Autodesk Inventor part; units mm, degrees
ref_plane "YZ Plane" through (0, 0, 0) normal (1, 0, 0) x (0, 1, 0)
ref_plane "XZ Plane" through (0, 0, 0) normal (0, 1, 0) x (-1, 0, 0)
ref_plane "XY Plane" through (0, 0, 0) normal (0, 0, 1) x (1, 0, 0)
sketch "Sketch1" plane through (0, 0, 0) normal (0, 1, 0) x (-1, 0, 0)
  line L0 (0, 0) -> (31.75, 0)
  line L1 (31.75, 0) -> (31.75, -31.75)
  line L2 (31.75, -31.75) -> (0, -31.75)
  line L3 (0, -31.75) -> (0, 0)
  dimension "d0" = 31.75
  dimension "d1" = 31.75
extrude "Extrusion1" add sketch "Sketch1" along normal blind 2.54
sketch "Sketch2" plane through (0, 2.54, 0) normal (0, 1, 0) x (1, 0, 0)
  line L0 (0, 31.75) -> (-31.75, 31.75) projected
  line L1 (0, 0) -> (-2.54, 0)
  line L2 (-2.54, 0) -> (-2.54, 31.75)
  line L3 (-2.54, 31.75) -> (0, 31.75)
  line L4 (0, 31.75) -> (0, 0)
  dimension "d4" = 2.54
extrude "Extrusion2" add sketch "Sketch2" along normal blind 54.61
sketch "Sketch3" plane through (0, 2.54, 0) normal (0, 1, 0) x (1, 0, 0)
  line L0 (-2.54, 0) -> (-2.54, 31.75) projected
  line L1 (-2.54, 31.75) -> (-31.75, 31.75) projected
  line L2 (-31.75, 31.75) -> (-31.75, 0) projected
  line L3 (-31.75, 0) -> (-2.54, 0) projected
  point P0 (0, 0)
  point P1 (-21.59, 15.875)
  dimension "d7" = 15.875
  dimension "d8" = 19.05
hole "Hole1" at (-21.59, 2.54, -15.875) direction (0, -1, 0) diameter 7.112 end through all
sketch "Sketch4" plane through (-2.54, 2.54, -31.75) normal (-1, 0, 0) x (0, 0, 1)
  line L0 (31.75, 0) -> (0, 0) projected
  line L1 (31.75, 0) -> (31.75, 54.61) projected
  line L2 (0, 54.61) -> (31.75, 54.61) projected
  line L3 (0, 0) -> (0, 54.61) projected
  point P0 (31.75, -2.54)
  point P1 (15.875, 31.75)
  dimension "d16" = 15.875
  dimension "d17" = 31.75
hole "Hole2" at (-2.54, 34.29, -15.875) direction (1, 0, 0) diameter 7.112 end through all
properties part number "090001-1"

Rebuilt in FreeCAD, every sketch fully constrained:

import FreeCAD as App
import Part
import Sketcher

V = App.Vector
Q = App.Units.Quantity


def add_polygon(sketch, points):
    """Adds a closed chain of lines whose ends are joined by coincident constraints."""
    first, n = sketch.GeometryCount, len(points)
    for a, b in zip(points, points[1:] + points[:1]):
        sketch.addGeometry(Part.LineSegment(App.Vector(*a, 0), App.Vector(*b, 0)), False)
    for i in range(n):
        sketch.addConstraint(Sketcher.Constraint("Coincident", first + i, 2, first + (i + 1) % n, 1))

doc = App.newDocument("Part")
body = doc.addObject("PartDesign::Body", "Body")

sketch1 = doc.addObject("Sketcher::SketchObject", "Sketch")
body.addObject(sketch1)
sketch1.AttachmentSupport = (doc.XZ_Plane, [""])
sketch1.MapMode = "FlatFace"
add_polygon(sketch1, [(-32, 0), (0, 0), (0, -32), (-32, -32)])
sketch1.addConstraint([
    Sketcher.Constraint("Horizontal", 0),
    Sketcher.Constraint("Vertical", 1),
    Sketcher.Constraint("Horizontal", 2),
    Sketcher.Constraint("Vertical", 3),
    Sketcher.Constraint("Coincident", 0, 2, -1, 1),
    Sketcher.Constraint("Equal", 2, 1),
    Sketcher.Constraint("DistanceX", 0, 1, 0, 2, Q("1.25 in")),
])
pad1 = doc.addObject("PartDesign::Pad", "Pad")
body.addObject(pad1)
pad1.Profile = sketch1
pad1.Length = Q("0.1 in")
pad1.Reversed = True

sketch2 = doc.addObject("Sketcher::SketchObject", "Sketch001")
body.addObject(sketch2)
sketch2.AttachmentSupport = (doc.XZ_Plane, [""])
sketch2.MapMode = "FlatFace"
sketch2.AttachmentOffset = App.Placement(V(0, 0, -0.1 * 25.4), App.Rotation())
add_polygon(sketch2, [(0, 0), (0, -31.8), (-2.5, -31.8), (-2.5, 0)])
sketch2.addConstraint([
    Sketcher.Constraint("Vertical", 0),
    Sketcher.Constraint("Horizontal", 1),
    Sketcher.Constraint("Vertical", 2),
    Sketcher.Constraint("Horizontal", 3),
    Sketcher.Constraint("Coincident", 3, 2, -1, 1),
    Sketcher.Constraint("DistanceX", 1, 2, 1, 1, Q("0.1 in")),
    Sketcher.Constraint("DistanceY", 0, 2, 0, 1, Q("1.25 in")),
])
pad2 = doc.addObject("PartDesign::Pad", "Pad001")
body.addObject(pad2)
pad2.Profile = sketch2
pad2.Length = Q("2.15 in")
pad2.Reversed = True

sketch3 = doc.addObject("Sketcher::SketchObject", "Sketch002")
body.addObject(sketch3)
sketch3.AttachmentSupport = (doc.XZ_Plane, [""])
sketch3.MapMode = "FlatFace"
sketch3.AttachmentOffset = App.Placement(V(0, 0, -0.1 * 25.4), App.Rotation())
sketch3.addGeometry(Part.Circle(V(-21.6, -15.9, 0), V(0, 0, 1), 3.6), False)
sketch3.addConstraint([
    Sketcher.Constraint("Diameter", 0, Q("0.28 in")),
    Sketcher.Constraint("DistanceX", 0, 3, -1, 1, Q("0.85 in")),
    Sketcher.Constraint("DistanceY", 0, 3, -1, 1, Q("0.625 in")),
])
doc.recompute()
hole = doc.addObject("PartDesign::Hole", "Hole")
body.addObject(hole)
hole.Profile = sketch3
hole.ThreadType = "None"
hole.Diameter = Q("0.28 in")
hole.DepthType = "ThroughAll"
hole.Reversed = True

sketch4 = doc.addObject("Sketcher::SketchObject", "Sketch003")
body.addObject(sketch4)
sketch4.AttachmentSupport = (doc.YZ_Plane, [""])
sketch4.MapMode = "FlatFace"
sketch4.AttachmentOffset = App.Placement(V(0, 0, -0.1 * 25.4), App.Rotation())
sketch4.addGeometry(Part.Circle(V(34.3, -15.9, 0), V(0, 0, 1), 3.6), False)
sketch4.addConstraint([
    Sketcher.Constraint("Diameter", 0, Q("0.28 in")),
    Sketcher.Constraint("DistanceX", -1, 1, 0, 3, Q("1.35 in")),
    Sketcher.Constraint("DistanceY", 0, 3, -1, 1, Q("0.625 in")),
])
doc.recompute()
hole2 = doc.addObject("PartDesign::Hole", "Hole001")
body.addObject(hole2)
hole2.Profile = sketch4
hole2.ThreadType = "None"
hole2.Diameter = Q("0.28 in")
hole2.DepthType = "ThroughAll"
hole2.Reversed = True

doc.recompute()
